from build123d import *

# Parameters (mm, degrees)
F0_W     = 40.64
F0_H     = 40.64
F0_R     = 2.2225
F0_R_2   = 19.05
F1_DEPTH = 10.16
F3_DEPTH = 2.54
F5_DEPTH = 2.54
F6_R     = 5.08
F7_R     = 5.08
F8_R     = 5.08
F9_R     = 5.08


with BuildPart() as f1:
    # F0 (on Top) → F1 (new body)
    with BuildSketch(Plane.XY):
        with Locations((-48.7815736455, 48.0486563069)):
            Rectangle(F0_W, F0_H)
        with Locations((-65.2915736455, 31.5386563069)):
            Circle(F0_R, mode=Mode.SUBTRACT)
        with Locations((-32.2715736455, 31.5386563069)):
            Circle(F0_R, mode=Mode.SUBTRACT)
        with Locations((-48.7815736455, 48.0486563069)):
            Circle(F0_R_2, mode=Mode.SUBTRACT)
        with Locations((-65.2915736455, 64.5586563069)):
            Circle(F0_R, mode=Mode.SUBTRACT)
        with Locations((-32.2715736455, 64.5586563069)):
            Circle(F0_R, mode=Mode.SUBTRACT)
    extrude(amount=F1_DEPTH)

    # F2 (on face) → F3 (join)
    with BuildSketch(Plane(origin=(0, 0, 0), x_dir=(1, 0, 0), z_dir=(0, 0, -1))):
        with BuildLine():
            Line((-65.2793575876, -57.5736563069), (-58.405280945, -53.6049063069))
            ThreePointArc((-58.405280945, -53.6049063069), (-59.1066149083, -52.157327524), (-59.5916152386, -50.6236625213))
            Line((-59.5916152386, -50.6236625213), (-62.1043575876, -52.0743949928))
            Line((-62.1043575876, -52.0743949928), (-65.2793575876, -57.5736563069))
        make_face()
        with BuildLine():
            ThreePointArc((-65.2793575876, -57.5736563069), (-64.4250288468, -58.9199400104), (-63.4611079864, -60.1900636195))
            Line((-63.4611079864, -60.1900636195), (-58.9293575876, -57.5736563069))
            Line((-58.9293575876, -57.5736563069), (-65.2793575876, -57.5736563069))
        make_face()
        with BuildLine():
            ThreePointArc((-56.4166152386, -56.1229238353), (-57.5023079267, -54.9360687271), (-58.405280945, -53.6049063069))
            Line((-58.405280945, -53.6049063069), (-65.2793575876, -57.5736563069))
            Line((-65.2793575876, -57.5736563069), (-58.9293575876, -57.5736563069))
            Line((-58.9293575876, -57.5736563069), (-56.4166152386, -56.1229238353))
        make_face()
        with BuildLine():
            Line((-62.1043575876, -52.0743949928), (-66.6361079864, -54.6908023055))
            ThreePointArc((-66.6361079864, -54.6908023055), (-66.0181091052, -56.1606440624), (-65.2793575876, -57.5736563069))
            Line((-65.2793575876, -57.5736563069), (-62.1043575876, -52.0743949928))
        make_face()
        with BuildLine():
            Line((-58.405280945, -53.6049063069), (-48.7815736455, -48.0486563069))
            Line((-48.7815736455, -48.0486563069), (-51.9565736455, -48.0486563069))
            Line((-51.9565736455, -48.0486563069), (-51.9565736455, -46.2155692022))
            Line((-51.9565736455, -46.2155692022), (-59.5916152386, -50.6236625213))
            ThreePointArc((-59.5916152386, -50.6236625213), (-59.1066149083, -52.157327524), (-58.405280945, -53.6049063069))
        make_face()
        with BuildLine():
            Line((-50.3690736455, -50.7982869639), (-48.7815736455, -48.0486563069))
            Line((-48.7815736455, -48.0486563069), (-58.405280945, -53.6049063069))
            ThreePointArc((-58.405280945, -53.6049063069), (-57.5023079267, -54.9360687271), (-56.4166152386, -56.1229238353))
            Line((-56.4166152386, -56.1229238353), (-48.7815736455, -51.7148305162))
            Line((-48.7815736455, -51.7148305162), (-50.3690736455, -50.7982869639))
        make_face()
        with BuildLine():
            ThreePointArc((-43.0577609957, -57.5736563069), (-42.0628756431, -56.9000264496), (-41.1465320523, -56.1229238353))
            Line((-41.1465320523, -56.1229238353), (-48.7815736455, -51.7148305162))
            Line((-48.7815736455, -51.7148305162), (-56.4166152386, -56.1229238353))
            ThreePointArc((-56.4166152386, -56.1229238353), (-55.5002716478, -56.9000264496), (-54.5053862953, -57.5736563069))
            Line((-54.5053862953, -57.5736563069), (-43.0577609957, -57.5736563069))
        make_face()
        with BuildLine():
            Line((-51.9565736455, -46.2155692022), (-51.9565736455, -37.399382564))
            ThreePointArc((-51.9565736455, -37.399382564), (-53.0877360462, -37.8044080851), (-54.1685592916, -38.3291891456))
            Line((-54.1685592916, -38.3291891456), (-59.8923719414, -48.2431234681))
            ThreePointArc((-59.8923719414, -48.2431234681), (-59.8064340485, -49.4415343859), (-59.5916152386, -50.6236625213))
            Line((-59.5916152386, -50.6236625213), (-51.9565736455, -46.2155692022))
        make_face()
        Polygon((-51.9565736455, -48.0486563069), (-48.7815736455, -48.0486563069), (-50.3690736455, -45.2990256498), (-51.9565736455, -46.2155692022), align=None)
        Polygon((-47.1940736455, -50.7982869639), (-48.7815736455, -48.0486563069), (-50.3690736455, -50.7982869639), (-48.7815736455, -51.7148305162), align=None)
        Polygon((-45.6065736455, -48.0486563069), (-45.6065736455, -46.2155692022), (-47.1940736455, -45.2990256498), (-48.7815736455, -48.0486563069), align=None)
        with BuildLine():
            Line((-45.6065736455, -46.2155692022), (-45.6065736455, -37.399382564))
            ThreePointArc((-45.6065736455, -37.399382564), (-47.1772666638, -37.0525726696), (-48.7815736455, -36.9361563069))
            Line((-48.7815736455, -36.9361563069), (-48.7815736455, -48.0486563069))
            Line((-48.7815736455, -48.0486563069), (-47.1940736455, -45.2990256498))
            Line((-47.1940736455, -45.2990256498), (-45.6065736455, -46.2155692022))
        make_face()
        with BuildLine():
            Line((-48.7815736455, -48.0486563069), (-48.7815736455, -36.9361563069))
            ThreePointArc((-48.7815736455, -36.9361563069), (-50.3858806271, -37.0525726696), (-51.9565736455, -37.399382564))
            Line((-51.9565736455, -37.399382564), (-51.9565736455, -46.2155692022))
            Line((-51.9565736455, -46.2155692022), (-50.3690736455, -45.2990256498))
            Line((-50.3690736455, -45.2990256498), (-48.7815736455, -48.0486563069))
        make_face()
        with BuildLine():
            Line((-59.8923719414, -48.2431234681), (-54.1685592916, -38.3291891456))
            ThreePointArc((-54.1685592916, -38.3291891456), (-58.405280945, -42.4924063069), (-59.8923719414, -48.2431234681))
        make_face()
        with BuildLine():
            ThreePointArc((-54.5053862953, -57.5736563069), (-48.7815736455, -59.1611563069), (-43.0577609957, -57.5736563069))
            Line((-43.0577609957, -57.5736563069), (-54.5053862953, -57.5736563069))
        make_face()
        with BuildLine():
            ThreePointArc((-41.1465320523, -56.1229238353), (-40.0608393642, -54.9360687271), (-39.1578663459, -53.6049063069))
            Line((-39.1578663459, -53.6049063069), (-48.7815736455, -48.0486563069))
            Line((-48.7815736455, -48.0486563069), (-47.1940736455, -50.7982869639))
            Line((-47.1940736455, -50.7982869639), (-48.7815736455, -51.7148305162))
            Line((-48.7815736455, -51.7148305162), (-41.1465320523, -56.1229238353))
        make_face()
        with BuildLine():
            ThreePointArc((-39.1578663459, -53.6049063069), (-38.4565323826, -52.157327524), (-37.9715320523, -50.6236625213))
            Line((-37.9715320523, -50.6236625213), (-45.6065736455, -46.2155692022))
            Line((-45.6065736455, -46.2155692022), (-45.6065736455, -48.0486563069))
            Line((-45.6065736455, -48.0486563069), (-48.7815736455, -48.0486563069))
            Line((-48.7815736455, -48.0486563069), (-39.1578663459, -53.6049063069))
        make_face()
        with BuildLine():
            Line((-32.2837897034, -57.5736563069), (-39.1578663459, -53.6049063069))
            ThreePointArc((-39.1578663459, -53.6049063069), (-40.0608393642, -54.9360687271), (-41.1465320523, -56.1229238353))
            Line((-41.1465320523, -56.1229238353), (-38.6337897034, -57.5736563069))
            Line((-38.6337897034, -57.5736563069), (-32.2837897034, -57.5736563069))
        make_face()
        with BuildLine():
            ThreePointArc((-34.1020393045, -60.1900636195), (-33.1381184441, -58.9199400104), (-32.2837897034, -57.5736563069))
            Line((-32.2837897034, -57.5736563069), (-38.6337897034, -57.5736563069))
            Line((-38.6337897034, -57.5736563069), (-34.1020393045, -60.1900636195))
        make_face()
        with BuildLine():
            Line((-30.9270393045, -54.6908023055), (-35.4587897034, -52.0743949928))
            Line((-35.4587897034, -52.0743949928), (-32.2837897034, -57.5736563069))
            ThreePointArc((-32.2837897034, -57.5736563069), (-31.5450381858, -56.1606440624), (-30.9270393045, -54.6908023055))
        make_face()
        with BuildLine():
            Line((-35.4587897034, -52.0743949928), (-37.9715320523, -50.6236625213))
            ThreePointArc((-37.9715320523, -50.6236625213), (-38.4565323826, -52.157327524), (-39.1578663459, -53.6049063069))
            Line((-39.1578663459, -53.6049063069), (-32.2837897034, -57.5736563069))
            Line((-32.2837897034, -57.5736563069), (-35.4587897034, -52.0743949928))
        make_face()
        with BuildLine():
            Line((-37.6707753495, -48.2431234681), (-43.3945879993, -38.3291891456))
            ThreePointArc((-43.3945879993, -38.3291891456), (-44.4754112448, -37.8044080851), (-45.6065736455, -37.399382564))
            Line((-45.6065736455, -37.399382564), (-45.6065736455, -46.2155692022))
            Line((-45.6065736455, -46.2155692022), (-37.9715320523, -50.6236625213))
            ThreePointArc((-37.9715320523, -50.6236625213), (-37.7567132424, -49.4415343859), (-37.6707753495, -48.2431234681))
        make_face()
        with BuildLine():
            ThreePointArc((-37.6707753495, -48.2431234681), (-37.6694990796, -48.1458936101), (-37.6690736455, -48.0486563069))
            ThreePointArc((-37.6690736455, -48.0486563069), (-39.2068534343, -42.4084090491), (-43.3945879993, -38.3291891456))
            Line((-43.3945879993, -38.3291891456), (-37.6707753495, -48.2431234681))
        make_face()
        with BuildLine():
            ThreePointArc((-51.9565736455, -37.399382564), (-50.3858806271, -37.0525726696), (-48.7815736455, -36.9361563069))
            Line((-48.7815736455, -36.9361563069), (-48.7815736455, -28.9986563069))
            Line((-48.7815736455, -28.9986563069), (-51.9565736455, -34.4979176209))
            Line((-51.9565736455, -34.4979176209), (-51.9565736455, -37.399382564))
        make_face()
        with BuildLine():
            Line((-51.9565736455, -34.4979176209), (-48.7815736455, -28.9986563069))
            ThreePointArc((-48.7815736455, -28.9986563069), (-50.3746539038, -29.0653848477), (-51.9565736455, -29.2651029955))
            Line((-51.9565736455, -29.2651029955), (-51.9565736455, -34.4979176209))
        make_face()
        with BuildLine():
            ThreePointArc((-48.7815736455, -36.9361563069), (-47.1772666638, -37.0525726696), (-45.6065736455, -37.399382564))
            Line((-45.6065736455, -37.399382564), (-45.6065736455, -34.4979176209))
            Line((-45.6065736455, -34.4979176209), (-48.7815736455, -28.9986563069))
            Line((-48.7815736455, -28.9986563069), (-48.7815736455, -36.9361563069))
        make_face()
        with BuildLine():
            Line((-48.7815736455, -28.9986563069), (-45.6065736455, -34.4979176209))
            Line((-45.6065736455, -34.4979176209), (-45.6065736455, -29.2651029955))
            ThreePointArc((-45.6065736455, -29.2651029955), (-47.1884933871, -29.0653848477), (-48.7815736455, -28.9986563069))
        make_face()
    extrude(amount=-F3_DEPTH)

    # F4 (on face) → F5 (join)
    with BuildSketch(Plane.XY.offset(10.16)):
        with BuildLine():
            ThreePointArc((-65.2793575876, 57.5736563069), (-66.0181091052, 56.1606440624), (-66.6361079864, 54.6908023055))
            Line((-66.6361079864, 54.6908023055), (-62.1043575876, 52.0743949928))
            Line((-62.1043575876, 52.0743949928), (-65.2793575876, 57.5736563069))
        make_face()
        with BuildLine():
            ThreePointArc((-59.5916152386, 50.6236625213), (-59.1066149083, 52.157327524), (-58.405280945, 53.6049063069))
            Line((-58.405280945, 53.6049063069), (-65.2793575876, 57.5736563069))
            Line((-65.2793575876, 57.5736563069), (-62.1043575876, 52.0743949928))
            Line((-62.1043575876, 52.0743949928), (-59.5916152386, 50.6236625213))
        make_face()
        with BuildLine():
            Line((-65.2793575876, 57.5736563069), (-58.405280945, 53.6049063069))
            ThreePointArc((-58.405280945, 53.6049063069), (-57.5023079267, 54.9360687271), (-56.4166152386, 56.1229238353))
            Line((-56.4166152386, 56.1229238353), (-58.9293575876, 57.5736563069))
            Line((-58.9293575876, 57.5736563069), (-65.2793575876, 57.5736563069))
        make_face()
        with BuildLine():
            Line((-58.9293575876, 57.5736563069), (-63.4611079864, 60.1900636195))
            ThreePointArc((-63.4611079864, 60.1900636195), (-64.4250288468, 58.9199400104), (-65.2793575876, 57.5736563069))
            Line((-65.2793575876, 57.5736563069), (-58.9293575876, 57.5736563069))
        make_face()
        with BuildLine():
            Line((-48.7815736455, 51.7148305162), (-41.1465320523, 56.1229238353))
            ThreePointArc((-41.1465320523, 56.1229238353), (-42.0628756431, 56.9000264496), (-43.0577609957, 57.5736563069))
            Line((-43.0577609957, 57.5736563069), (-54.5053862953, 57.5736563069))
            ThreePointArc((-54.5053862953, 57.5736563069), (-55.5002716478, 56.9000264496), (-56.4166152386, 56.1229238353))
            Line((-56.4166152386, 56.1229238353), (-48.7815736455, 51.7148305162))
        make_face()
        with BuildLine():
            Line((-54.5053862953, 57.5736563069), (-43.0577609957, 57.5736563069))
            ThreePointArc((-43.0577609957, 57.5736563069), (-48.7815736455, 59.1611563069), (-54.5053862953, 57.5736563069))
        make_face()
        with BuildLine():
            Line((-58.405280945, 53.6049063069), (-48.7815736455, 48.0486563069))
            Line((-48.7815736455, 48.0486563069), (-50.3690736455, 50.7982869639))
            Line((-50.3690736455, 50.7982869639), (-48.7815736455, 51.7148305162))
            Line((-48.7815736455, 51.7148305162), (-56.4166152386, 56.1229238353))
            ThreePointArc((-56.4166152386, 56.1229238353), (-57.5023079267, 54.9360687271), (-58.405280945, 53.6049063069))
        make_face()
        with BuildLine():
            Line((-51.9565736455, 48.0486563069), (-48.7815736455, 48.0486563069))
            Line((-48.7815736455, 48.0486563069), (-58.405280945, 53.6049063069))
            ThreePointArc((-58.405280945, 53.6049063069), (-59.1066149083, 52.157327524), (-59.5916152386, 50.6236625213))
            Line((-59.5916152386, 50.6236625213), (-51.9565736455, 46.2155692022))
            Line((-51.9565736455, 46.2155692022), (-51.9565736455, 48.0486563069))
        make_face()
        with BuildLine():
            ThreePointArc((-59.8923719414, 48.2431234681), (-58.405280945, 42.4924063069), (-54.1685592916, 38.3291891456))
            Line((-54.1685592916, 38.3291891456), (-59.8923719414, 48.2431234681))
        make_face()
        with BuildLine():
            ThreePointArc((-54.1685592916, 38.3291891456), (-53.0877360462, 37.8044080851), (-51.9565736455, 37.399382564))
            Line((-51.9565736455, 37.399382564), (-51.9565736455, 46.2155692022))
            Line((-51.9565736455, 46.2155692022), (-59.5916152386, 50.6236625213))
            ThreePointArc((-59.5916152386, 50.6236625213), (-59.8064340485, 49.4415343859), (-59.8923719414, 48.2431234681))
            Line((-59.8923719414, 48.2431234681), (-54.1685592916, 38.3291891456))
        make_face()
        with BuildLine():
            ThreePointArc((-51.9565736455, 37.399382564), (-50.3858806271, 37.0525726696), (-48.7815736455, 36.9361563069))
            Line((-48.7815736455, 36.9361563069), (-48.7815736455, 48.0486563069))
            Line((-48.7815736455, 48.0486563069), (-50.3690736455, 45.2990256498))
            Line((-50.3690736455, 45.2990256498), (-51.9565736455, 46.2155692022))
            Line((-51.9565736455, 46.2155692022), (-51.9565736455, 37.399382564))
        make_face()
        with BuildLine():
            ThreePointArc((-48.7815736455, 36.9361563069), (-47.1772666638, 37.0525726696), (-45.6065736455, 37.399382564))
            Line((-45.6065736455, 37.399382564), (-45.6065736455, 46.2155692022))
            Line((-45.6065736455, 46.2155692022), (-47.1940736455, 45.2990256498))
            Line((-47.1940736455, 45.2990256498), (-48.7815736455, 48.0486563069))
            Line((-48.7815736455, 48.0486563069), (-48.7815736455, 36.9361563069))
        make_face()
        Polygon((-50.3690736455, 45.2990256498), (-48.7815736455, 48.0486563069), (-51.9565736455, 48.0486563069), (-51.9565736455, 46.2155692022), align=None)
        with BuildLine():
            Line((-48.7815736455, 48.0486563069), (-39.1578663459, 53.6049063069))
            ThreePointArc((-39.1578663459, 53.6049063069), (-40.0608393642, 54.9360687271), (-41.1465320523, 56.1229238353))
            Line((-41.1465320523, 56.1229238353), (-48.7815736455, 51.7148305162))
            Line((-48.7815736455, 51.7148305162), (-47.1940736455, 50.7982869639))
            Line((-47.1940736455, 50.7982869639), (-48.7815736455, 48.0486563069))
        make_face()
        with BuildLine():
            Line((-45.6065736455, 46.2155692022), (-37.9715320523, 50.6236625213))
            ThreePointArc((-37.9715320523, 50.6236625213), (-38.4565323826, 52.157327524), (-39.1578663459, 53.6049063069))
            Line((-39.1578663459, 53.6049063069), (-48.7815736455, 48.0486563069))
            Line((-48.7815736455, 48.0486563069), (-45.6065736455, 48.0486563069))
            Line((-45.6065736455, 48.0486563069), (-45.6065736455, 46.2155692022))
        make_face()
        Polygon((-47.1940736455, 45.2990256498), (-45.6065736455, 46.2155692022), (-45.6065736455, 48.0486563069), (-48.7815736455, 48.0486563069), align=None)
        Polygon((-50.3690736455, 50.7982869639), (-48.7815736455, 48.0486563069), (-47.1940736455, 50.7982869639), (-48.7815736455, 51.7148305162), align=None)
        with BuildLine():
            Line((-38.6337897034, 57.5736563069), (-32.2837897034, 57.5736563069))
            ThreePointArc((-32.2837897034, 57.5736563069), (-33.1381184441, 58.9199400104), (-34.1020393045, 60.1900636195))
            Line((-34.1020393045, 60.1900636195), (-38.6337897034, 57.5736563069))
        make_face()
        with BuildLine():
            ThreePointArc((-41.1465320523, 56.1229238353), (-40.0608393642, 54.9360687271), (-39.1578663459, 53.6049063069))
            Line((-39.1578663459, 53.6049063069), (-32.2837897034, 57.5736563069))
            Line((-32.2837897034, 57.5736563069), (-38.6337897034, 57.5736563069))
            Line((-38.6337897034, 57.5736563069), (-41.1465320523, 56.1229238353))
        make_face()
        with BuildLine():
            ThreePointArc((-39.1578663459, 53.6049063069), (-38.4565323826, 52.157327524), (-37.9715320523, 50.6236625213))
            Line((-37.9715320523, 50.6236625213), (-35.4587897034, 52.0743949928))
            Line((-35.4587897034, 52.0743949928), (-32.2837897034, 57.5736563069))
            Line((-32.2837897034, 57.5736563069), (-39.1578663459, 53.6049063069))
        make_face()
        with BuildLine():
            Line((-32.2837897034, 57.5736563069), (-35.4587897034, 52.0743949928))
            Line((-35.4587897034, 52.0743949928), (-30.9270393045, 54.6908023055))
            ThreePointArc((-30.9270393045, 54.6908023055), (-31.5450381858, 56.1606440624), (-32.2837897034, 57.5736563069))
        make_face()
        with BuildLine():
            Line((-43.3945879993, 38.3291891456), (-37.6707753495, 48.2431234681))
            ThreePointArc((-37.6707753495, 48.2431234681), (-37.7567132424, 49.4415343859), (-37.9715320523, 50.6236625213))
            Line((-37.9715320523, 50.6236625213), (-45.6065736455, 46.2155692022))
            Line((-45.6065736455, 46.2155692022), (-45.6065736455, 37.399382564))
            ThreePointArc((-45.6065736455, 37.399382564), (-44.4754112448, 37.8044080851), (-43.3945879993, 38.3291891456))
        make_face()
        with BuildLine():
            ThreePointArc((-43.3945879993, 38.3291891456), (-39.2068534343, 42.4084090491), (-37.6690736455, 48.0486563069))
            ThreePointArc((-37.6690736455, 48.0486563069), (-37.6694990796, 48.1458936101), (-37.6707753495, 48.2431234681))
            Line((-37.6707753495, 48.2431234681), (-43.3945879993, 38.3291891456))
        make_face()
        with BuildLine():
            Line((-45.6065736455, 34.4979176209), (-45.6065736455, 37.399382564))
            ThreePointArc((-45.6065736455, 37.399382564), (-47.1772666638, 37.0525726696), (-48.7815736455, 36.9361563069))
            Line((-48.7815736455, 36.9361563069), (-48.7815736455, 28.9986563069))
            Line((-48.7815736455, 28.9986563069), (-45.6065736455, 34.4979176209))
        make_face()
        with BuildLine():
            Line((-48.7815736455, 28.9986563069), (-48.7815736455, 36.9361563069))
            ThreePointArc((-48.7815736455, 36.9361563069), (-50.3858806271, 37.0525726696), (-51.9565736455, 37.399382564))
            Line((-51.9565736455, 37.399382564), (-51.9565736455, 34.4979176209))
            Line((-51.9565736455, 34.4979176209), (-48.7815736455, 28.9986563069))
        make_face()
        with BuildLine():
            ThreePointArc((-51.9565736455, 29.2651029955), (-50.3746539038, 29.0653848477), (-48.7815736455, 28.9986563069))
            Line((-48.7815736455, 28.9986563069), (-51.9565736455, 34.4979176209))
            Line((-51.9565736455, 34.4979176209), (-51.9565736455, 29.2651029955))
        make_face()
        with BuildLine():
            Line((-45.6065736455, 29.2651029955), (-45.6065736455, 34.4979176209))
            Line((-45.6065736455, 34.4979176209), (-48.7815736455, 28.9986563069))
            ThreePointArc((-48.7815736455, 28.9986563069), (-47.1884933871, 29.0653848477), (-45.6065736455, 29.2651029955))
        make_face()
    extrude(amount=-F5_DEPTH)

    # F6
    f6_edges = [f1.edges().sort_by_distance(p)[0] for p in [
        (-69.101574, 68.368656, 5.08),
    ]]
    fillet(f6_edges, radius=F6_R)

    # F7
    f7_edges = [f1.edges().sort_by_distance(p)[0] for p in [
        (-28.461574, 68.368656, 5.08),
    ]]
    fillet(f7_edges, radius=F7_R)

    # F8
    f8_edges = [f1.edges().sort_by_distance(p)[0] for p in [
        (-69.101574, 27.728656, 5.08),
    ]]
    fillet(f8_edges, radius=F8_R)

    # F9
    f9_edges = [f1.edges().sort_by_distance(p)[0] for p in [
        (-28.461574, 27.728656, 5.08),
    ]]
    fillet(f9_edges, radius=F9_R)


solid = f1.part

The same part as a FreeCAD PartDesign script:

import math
import FreeCAD as App
import Part
import Sketcher

V = App.Vector
Q = App.Units.Quantity


def edges_at(feature, points):
    """Names of the edges that pass closest to the given points."""
    edges = feature.Shape.Edges
    near = lambda p: min(range(len(edges)), key=lambda i: edges[i].distToShape(Part.Vertex(*p))[0])
    return sorted({f"Edge{near(p) + 1}" for p in points})


def add_polygon(sketch, points):
    """Adds a closed chain of lines whose ends are joined by coincident constraints."""
    first, n = sketch.GeometryCount, len(points)
    for a, b in zip(points, points[1:] + points[:1]):
        sketch.addGeometry(Part.LineSegment(App.Vector(*a, 0), App.Vector(*b, 0)), False)
    for i in range(n):
        sketch.addConstraint(Sketcher.Constraint("Coincident", first + i, 2, first + (i + 1) % n, 1))

doc = App.newDocument("Part")
params = doc.addObject("Spreadsheet::Sheet", "Params")
for row, (alias, value) in enumerate([
    ("sketch1_diameter", "1.5 in"),
    ("sketch1_diameter2", "0.175 in"),
    ("sketch1_width", "1.6 in"),
    ("pad1_length", "0.4 in"),
    ("sketch2_radius", "0.75 in"),
    ("sketch2_radius2", "0.4375 in"),
    ("pad2_length", "0.1 in"),
    ("sketch3_radius", "0.75 in"),
    ("sketch3_radius2", "0.4375 in"),
    ("pad3_length", "0.1 in"),
    ("fillet_radius", "0.2 in"),
    ("fillet2_radius", "0.2 in"),
    ("fillet3_radius", "0.2 in"),
    ("fillet4_radius", "0.2 in"),
], start=1):
    params.set(f"A{row}", alias)
    params.set(f"B{row}", "=" + value)
    params.setAlias(f"B{row}", alias)

body = doc.addObject("PartDesign::Body", "Body")

sketch1 = body.newObject("Sketcher::SketchObject", "Sketch")
sketch1.AttachmentSupport = (doc.getObject("XY_Plane"), [""])
sketch1.MapMode = "FlatFace"
add_polygon(sketch1, [(-69.1, 68.4), (-69.1, 27.7), (-28.5, 27.7), (-28.5, 68.4)])
sketch1.addGeometry(Part.Circle(V(-65.3, 31.5, 0), V(0, 0, 1), 2.2), False)
sketch1.addGeometry(Part.Circle(V(-32.3, 31.5, 0), V(0, 0, 1), 2.2), False)
sketch1.addGeometry(Part.Circle(V(-65.3, 64.6, 0), V(0, 0, 1), 2.2), False)
sketch1.addGeometry(Part.Circle(V(-48.8, 48, 0), V(0, 0, 1), 19.1), False)
sketch1.addGeometry(Part.Circle(V(-32.3, 64.6, 0), V(0, 0, 1), 2.2), False)
sketch1.addConstraint([
    Sketcher.Constraint("Vertical", 0),
    Sketcher.Constraint("Horizontal", 1),
    Sketcher.Constraint("Vertical", 2),
    Sketcher.Constraint("Horizontal", 3),
    Sketcher.Constraint("Equal", 4, 5),
    Sketcher.Constraint("Equal", 5, 6),
    Sketcher.Constraint("Equal", 6, 8),
    Sketcher.Constraint("Horizontal", 4, 3, 5, 3),
    Sketcher.Constraint("Horizontal", 6, 3, 8, 3),
    Sketcher.Constraint("Vertical", 4, 3, 6, 3),
    Sketcher.Constraint("Vertical", 5, 3, 8, 3),
    Sketcher.Constraint("Equal", 3, 0),
    Sketcher.Constraint("Diameter", 7, Q("1.5 in")),
    Sketcher.Constraint("Diameter", 4, Q("0.175 in")),
    Sketcher.Constraint("DistanceX", 1, 1, 1, 2, Q("1.6 in")),
    Sketcher.Constraint("DistanceX", 4, 3, 5, 3, Q("1.3 in")),
    Sketcher.Constraint("DistanceY", 4, 3, 6, 3, Q("1.3 in")),
    Sketcher.Constraint("DistanceX", 0, 2, 7, 3, Q("0.8 in")),
    Sketcher.Constraint("DistanceY", 0, 2, 7, 3, Q("0.8 in")),
    Sketcher.Constraint("DistanceX", 4, 3, 7, 3, Q("0.65 in")),
    Sketcher.Constraint("DistanceY", 4, 3, 7, 3, Q("0.65 in")),
    Sketcher.Constraint("DistanceX", 4, 3, -1, 1, Q("65.291574 mm")),
    Sketcher.Constraint("DistanceY", -1, 1, 4, 3, Q("31.538656 mm")),
])
sketch1.setExpression("Constraints[16]", "Params.sketch1_diameter")
sketch1.setExpression("Constraints[17]", "Params.sketch1_diameter2")
sketch1.setExpression("Constraints[18]", "Params.sketch1_width")
pad1 = body.newObject("PartDesign::Pad", "Pad")
pad1.Profile = sketch1
pad1.setExpression("Length", "Params.pad1_length")

sketch2 = body.newObject("Sketcher::SketchObject", "Sketch001")
sketch2.AttachmentSupport = (doc.getObject("XY_Plane"), [""])
sketch2.MapMode = "FlatFace"
sketch2.addGeometry([
    Part.LineSegment(V(-59.59, 50.62, 0), V(-62.1, 52.07, 0)),
    Part.LineSegment(V(-62.1, 52.07, 0), V(-66.64, 54.69, 0)),
    Part.ArcOfCircle(Part.Circle(V(-48.78, 48.05, 0), V(0, 0, 1), 19.05), math.radians(150), math.radians(159.59)),
    Part.ArcOfCircle(Part.Circle(V(-48.78, 48.05, 0), V(0, 0, 1), 19.05), math.radians(140.41), math.radians(150)),
    Part.LineSegment(V(-63.46, 60.19, 0), V(-58.93, 57.57, 0)),
    Part.LineSegment(V(-58.93, 57.57, 0), V(-56.42, 56.12, 0)),
    Part.ArcOfCircle(Part.Circle(V(-48.78, 48.05, 0), V(0, 0, 1), 11.11), math.radians(121), math.radians(133.4)),
    Part.ArcOfCircle(Part.Circle(V(-48.78, 48.05, 0), V(0, 0, 1), 11.11), math.radians(59), math.radians(121)),
    Part.ArcOfCircle(Part.Circle(V(-48.78, 48.05, 0), V(0, 0, 1), 11.11), math.radians(46.6), math.radians(59)),
    Part.LineSegment(V(-41.15, 56.12, 0), V(-38.63, 57.57, 0)),
    Part.LineSegment(V(-38.63, 57.57, 0), V(-34.1, 60.19, 0)),
    Part.ArcOfCircle(Part.Circle(V(-48.78, 48.05, 0), V(0, 0, 1), 19.05), math.radians(30), math.radians(39.59)),
    Part.ArcOfCircle(Part.Circle(V(-48.78, 48.05, 0), V(0, 0, 1), 19.05), math.radians(20.41), math.radians(30)),
    Part.LineSegment(V(-30.93, 54.69, 0), V(-35.46, 52.07, 0)),
    Part.LineSegment(V(-35.46, 52.07, 0), V(-37.97, 50.62, 0)),
    Part.ArcOfCircle(Part.Circle(V(-48.78, 48.05, 0), V(0, 0, 1), 11.11), math.radians(1), math.radians(13.4)),
    Part.ArcOfCircle(Part.Circle(V(-48.78, 48.05, 0), V(0, 0, 1), 11.11), math.radians(0), math.radians(1)),
    Part.ArcOfCircle(Part.Circle(V(-48.78, 48.05, 0), V(0, 0, 1), 11.11), math.radians(-61), math.radians(0)),
    Part.ArcOfCircle(Part.Circle(V(-48.78, 48.05, 0), V(0, 0, 1), 11.11), math.radians(-73.4), math.radians(-61)),
    Part.LineSegment(V(-45.61, 37.4, 0), V(-45.61, 29.27, 0)),
    Part.ArcOfCircle(Part.Circle(V(-48.78, 48.05, 0), V(0, 0, 1), 19.05), math.radians(-90), math.radians(-80.41)),
    Part.ArcOfCircle(Part.Circle(V(-48.78, 48.05, 0), V(0, 0, 1), 19.05), math.radians(-99.59), math.radians(-90)),
    Part.LineSegment(V(-51.96, 29.27, 0), V(-51.96, 37.4, 0)),
    Part.ArcOfCircle(Part.Circle(V(-48.78, 48.05, 0), V(0, 0, 1), 11.11), math.radians(-119), math.radians(-106.6)),
    Part.ArcOfCircle(Part.Circle(V(-48.78, 48.05, 0), V(0, 0, 1), 11.11), math.radians(179), math.radians(241)),
    Part.ArcOfCircle(Part.Circle(V(-48.78, 48.05, 0), V(0, 0, 1), 11.11), math.radians(166.6), math.radians(179)),
], False)
sketch2.addConstraint([
    Sketcher.Constraint("Coincident", 0, 2, 1, 1),
    Sketcher.Constraint("Coincident", 1, 2, 2, 2),
    Sketcher.Constraint("Tangent", 2, 1, 3, 2),
    Sketcher.Constraint("Coincident", 3, 1, 4, 1),
    Sketcher.Constraint("Coincident", 4, 2, 5, 1),
    Sketcher.Constraint("Coincident", 5, 2, 6, 2),
    Sketcher.Constraint("Tangent", 6, 1, 7, 2),
    Sketcher.Constraint("Tangent", 7, 1, 8, 2),
    Sketcher.Constraint("Coincident", 8, 1, 9, 1),
    Sketcher.Constraint("Coincident", 9, 2, 10, 1),
    Sketcher.Constraint("Coincident", 10, 2, 11, 2),
    Sketcher.Constraint("Tangent", 11, 1, 12, 2),
    Sketcher.Constraint("Coincident", 12, 1, 13, 1),
    Sketcher.Constraint("Coincident", 13, 2, 14, 1),
    Sketcher.Constraint("Coincident", 14, 2, 15, 2),
    Sketcher.Constraint("Tangent", 15, 1, 16, 2),
    Sketcher.Constraint("Tangent", 16, 1, 17, 2),
    Sketcher.Constraint("Tangent", 17, 1, 18, 2),
    Sketcher.Constraint("Coincident", 18, 1, 19, 1),
    Sketcher.Constraint("Coincident", 19, 2, 20, 2),
    Sketcher.Constraint("Tangent", 20, 1, 21, 2),
    Sketcher.Constraint("Coincident", 21, 1, 22, 1),
    Sketcher.Constraint("Coincident", 22, 2, 23, 2),
    Sketcher.Constraint("Tangent", 23, 1, 24, 2),
    Sketcher.Constraint("Tangent", 24, 1, 25, 2),
    Sketcher.Constraint("Coincident", 25, 1, 0, 1),
    Sketcher.Constraint("Vertical", 19),
    Sketcher.Constraint("Vertical", 22),
    Sketcher.Constraint("Coincident", 6, 3, 2, 3),
    Sketcher.Constraint("Coincident", 8, 3, 2, 3),
    Sketcher.Constraint("Coincident", 11, 3, 2, 3),
    Sketcher.Constraint("Coincident", 15, 3, 2, 3),
    Sketcher.Constraint("Coincident", 17, 3, 2, 3),
    Sketcher.Constraint("Coincident", 20, 3, 2, 3),
    Sketcher.Constraint("Coincident", 23, 3, 2, 3),
    Sketcher.Constraint("Coincident", 25, 3, 2, 3),
    Sketcher.Constraint("Equal", 2, 3),
    Sketcher.Constraint("Equal", 3, 11),
    Sketcher.Constraint("Equal", 11, 12),
    Sketcher.Constraint("Equal", 8, 15),
    Sketcher.Constraint("Equal", 17, 18),
    Sketcher.Constraint("Equal", 12, 20),
    Sketcher.Constraint("Equal", 20, 21),
    Sketcher.Constraint("Equal", 18, 23),
    Sketcher.Constraint("Parallel", 0, 1),
    Sketcher.Constraint("Parallel", 1, 4),
    Sketcher.Constraint("Parallel", 4, 5),
    Sketcher.Constraint("Parallel", 9, 10),
    Sketcher.Constraint("Parallel", 10, 13),
    Sketcher.Constraint("Parallel", 13, 14),
    Sketcher.Constraint("Horizontal", 2, 1, 4, 2),
    Sketcher.Constraint("Horizontal", 4, 2, 6, 1),
    Sketcher.Constraint("Horizontal", 6, 1, 7, 1),
    Sketcher.Constraint("Horizontal", 5, 2, 8, 1),
    Sketcher.Constraint("Horizontal", 7, 1, 9, 2),
    Sketcher.Constraint("Horizontal", 3, 1, 10, 2),
    Sketcher.Constraint("Horizontal", 9, 2, 11, 1),
    Sketcher.Constraint("Horizontal", 1, 2, 12, 1),
    Sketcher.Constraint("Horizontal", 0, 2, 13, 2),
    Sketcher.Constraint("Horizontal", 25, 3, 16, 1),
    Sketcher.Constraint("Horizontal", 19, 2, 21, 1),
    Sketcher.Constraint("Horizontal", 17, 1, 23, 1),
    Sketcher.Constraint("Horizontal", 15, 1, 24, 1),
    Sketcher.Constraint("Vertical", 25, 3, 20, 1),
    Sketcher.Constraint("Equal", 1, 4),
    Sketcher.Constraint("Equal", 0, 5),
    Sketcher.Constraint("Radius", 2, Q("0.75 in")),
    Sketcher.Constraint("Angle", 0, Q("150 deg")),
    Sketcher.Constraint("Radius", 6, Q("0.4375 in")),
    Sketcher.Constraint("DistanceX", 2, 1, 4, 2, Q("0.25 in")),
    Sketcher.Constraint("DistanceX", 21, 1, 19, 2, Q("0.25 in")),
    Sketcher.Constraint("DistanceX", 2, 1, 0, 2, Q("0.125 in")),
    Sketcher.Constraint("DistanceX", 10, 2, -1, 1, Q("1.3426 in")),
    Sketcher.Constraint("DistanceY", 15, 1, 8, 1, Q("7.8798 mm")),
    Sketcher.Constraint("DistanceY", -1, 1, 17, 1, Q("38.329189 mm")),
    Sketcher.Constraint("DistanceX", 23, 1, -1, 1, Q("54.168559 mm")),
])
sketch2.setExpression("Constraints[66]", "Params.sketch2_radius")
sketch2.setExpression("Constraints[68]", "Params.sketch2_radius2")
pad2 = body.newObject("PartDesign::Pad", "Pad001")
pad2.Profile = sketch2
pad2.setExpression("Length", "Params.pad2_length")

sketch3 = body.newObject("Sketcher::SketchObject", "Sketch002")
sketch3.AttachmentSupport = (doc.getObject("XY_Plane"), [""])
sketch3.MapMode = "FlatFace"
sketch3.AttachmentOffset = App.Placement(V(0, 0, 0.4 * 25.4), App.Rotation())
sketch3.addGeometry([
    Part.LineSegment(V(-37.97, 50.62, 0), V(-35.46, 52.07, 0)),
    Part.LineSegment(V(-35.46, 52.07, 0), V(-30.93, 54.69, 0)),
    Part.ArcOfCircle(Part.Circle(V(-48.78, 48.05, 0), V(0, 0, 1), 19.05), math.radians(20.41), math.radians(30)),
    Part.ArcOfCircle(Part.Circle(V(-48.78, 48.05, 0), V(0, 0, 1), 19.05), math.radians(30), math.radians(39.59)),
    Part.LineSegment(V(-34.1, 60.19, 0), V(-38.63, 57.57, 0)),
    Part.LineSegment(V(-38.63, 57.57, 0), V(-41.15, 56.12, 0)),
    Part.ArcOfCircle(Part.Circle(V(-48.78, 48.05, 0), V(0, 0, 1), 11.11), math.radians(46.6), math.radians(59)),
    Part.ArcOfCircle(Part.Circle(V(-48.78, 48.05, 0), V(0, 0, 1), 11.11), math.radians(59), math.radians(121)),
    Part.ArcOfCircle(Part.Circle(V(-48.78, 48.05, 0), V(0, 0, 1), 11.11), math.radians(121), math.radians(133.4)),
    Part.LineSegment(V(-56.42, 56.12, 0), V(-58.93, 57.57, 0)),
    Part.LineSegment(V(-58.93, 57.57, 0), V(-63.46, 60.19, 0)),
    Part.ArcOfCircle(Part.Circle(V(-48.78, 48.05, 0), V(0, 0, 1), 19.05), math.radians(140.41), math.radians(150)),
    Part.ArcOfCircle(Part.Circle(V(-48.78, 48.05, 0), V(0, 0, 1), 19.05), math.radians(150), math.radians(159.59)),
    Part.LineSegment(V(-66.64, 54.69, 0), V(-62.1, 52.07, 0)),
    Part.LineSegment(V(-62.1, 52.07, 0), V(-59.59, 50.62, 0)),
    Part.ArcOfCircle(Part.Circle(V(-48.78, 48.05, 0), V(0, 0, 1), 11.11), math.radians(166.6), math.radians(179)),
    Part.ArcOfCircle(Part.Circle(V(-48.78, 48.05, 0), V(0, 0, 1), 11.11), math.radians(179), math.radians(241)),
    Part.ArcOfCircle(Part.Circle(V(-48.78, 48.05, 0), V(0, 0, 1), 11.11), math.radians(-119), math.radians(-106.6)),
    Part.LineSegment(V(-51.96, 37.4, 0), V(-51.96, 29.27, 0)),
    Part.ArcOfCircle(Part.Circle(V(-48.78, 48.05, 0), V(0, 0, 1), 19.05), math.radians(-99.59), math.radians(-90)),
    Part.ArcOfCircle(Part.Circle(V(-48.78, 48.05, 0), V(0, 0, 1), 19.05), math.radians(-90), math.radians(-80.41)),
    Part.LineSegment(V(-45.61, 29.27, 0), V(-45.61, 37.4, 0)),
    Part.ArcOfCircle(Part.Circle(V(-48.78, 48.05, 0), V(0, 0, 1), 11.11), math.radians(-73.4), math.radians(-61)),
    Part.ArcOfCircle(Part.Circle(V(-48.78, 48.05, 0), V(0, 0, 1), 11.11), math.radians(-61), math.radians(0)),
    Part.ArcOfCircle(Part.Circle(V(-48.78, 48.05, 0), V(0, 0, 1), 11.11), math.radians(0), math.radians(1)),
    Part.ArcOfCircle(Part.Circle(V(-48.78, 48.05, 0), V(0, 0, 1), 11.11), math.radians(1), math.radians(13.4)),
], False)
sketch3.addConstraint([
    Sketcher.Constraint("Coincident", 0, 2, 1, 1),
    Sketcher.Constraint("Coincident", 1, 2, 2, 1),
    Sketcher.Constraint("Tangent", 2, 2, 3, 1),
    Sketcher.Constraint("Coincident", 3, 2, 4, 1),
    Sketcher.Constraint("Coincident", 4, 2, 5, 1),
    Sketcher.Constraint("Coincident", 5, 2, 6, 1),
    Sketcher.Constraint("Tangent", 6, 2, 7, 1),
    Sketcher.Constraint("Tangent", 7, 2, 8, 1),
    Sketcher.Constraint("Coincident", 8, 2, 9, 1),
    Sketcher.Constraint("Coincident", 9, 2, 10, 1),
    Sketcher.Constraint("Coincident", 10, 2, 11, 1),
    Sketcher.Constraint("Tangent", 11, 2, 12, 1),
    Sketcher.Constraint("Coincident", 12, 2, 13, 1),
    Sketcher.Constraint("Coincident", 13, 2, 14, 1),
    Sketcher.Constraint("Coincident", 14, 2, 15, 1),
    Sketcher.Constraint("Tangent", 15, 2, 16, 1),
    Sketcher.Constraint("Tangent", 16, 2, 17, 1),
    Sketcher.Constraint("Coincident", 17, 2, 18, 1),
    Sketcher.Constraint("Coincident", 18, 2, 19, 1),
    Sketcher.Constraint("Tangent", 19, 2, 20, 1),
    Sketcher.Constraint("Coincident", 20, 2, 21, 1),
    Sketcher.Constraint("Coincident", 21, 2, 22, 1),
    Sketcher.Constraint("Tangent", 22, 2, 23, 1),
    Sketcher.Constraint("Tangent", 23, 2, 24, 1),
    Sketcher.Constraint("Tangent", 24, 2, 25, 1),
    Sketcher.Constraint("Coincident", 25, 2, 0, 1),
    Sketcher.Constraint("Vertical", 18),
    Sketcher.Constraint("Vertical", 21),
    Sketcher.Constraint("Coincident", 6, 3, 2, 3),
    Sketcher.Constraint("Coincident", 8, 3, 2, 3),
    Sketcher.Constraint("Coincident", 11, 3, 2, 3),
    Sketcher.Constraint("Coincident", 15, 3, 2, 3),
    Sketcher.Constraint("Coincident", 17, 3, 2, 3),
    Sketcher.Constraint("Coincident", 19, 3, 2, 3),
    Sketcher.Constraint("Coincident", 22, 3, 2, 3),
    Sketcher.Constraint("Coincident", 24, 3, 2, 3),
    Sketcher.Constraint("Equal", 2, 3),
    Sketcher.Constraint("Equal", 3, 11),
    Sketcher.Constraint("Equal", 11, 12),
    Sketcher.Constraint("Equal", 8, 15),
    Sketcher.Constraint("Equal", 12, 19),
    Sketcher.Constraint("Equal", 19, 20),
    Sketcher.Constraint("Equal", 17, 22),
    Sketcher.Constraint("Equal", 24, 25),
    Sketcher.Constraint("Parallel", 0, 1),
    Sketcher.Constraint("Parallel", 1, 4),
    Sketcher.Constraint("Parallel", 4, 5),
    Sketcher.Constraint("Parallel", 9, 10),
    Sketcher.Constraint("Parallel", 10, 13),
    Sketcher.Constraint("Parallel", 13, 14),
    Sketcher.Constraint("Horizontal", 2, 2, 4, 2),
    Sketcher.Constraint("Horizontal", 4, 2, 6, 2),
    Sketcher.Constraint("Horizontal", 6, 2, 7, 2),
    Sketcher.Constraint("Horizontal", 5, 2, 8, 2),
    Sketcher.Constraint("Horizontal", 7, 2, 9, 2),
    Sketcher.Constraint("Horizontal", 3, 2, 10, 2),
    Sketcher.Constraint("Horizontal", 9, 2, 11, 2),
    Sketcher.Constraint("Horizontal", 1, 2, 12, 2),
    Sketcher.Constraint("Horizontal", 0, 2, 13, 2),
    Sketcher.Constraint("Horizontal", 18, 2, 20, 2),
    Sketcher.Constraint("Horizontal", 16, 2, 22, 2),
    Sketcher.Constraint("Horizontal", 25, 3, 23, 2),
    Sketcher.Constraint("Horizontal", 15, 2, 24, 2),
    Sketcher.Constraint("Vertical", 25, 3, 19, 2),
    Sketcher.Constraint("Equal", 1, 4),
    Sketcher.Constraint("Equal", 0, 5),
    Sketcher.Constraint("Radius", 2, Q("0.75 in")),
    Sketcher.Constraint("Angle", 0, Q("30 deg")),
    Sketcher.Constraint("Radius", 6, Q("0.4375 in")),
    Sketcher.Constraint("DistanceX", 4, 2, 2, 2, Q("0.25 in")),
    Sketcher.Constraint("DistanceX", 18, 2, 20, 2, Q("0.25 in")),
    Sketcher.Constraint("DistanceX", 0, 2, 2, 2, Q("0.125 in")),
    Sketcher.Constraint("DistanceX", 1, 2, -1, 1, Q("1.2176 in")),
    Sketcher.Constraint("DistanceY", 15, 2, 8, 2, Q("7.8798 mm")),
    Sketcher.Constraint("DistanceX", 16, 2, -1, 1, Q("54.168559 mm")),
    Sketcher.Constraint("DistanceY", -1, 1, 16, 2, Q("38.329189 mm")),
])
sketch3.setExpression("Constraints[66]", "Params.sketch3_radius")
sketch3.setExpression("Constraints[68]", "Params.sketch3_radius2")
pad3 = body.newObject("PartDesign::Pad", "Pad002")
pad3.Profile = sketch3
pad3.setExpression("Length", "Params.pad3_length")
pad3.Reversed = True
doc.recompute()

fillet = body.newObject("PartDesign::Fillet", "Fillet")
fillet.Base = (pad3, edges_at(pad3, [(-69.102, 68.369, 5.08)]))
fillet.setExpression("Radius", "Params.fillet_radius")
doc.recompute()

fillet2 = body.newObject("PartDesign::Fillet", "Fillet001")
fillet2.Base = (fillet, edges_at(fillet, [(-28.462, 68.369, 5.08)]))
fillet2.setExpression("Radius", "Params.fillet2_radius")
doc.recompute()

fillet3 = body.newObject("PartDesign::Fillet", "Fillet002")
fillet3.Base = (fillet2, edges_at(fillet2, [(-69.102, 27.729, 5.08)]))
fillet3.setExpression("Radius", "Params.fillet3_radius")
doc.recompute()

fillet4 = body.newObject("PartDesign::Fillet", "Fillet003")
fillet4.Base = (fillet3, edges_at(fillet3, [(-28.462, 27.729, 5.08)]))
fillet4.setExpression("Radius", "Params.fillet4_radius")

doc.recompute()
